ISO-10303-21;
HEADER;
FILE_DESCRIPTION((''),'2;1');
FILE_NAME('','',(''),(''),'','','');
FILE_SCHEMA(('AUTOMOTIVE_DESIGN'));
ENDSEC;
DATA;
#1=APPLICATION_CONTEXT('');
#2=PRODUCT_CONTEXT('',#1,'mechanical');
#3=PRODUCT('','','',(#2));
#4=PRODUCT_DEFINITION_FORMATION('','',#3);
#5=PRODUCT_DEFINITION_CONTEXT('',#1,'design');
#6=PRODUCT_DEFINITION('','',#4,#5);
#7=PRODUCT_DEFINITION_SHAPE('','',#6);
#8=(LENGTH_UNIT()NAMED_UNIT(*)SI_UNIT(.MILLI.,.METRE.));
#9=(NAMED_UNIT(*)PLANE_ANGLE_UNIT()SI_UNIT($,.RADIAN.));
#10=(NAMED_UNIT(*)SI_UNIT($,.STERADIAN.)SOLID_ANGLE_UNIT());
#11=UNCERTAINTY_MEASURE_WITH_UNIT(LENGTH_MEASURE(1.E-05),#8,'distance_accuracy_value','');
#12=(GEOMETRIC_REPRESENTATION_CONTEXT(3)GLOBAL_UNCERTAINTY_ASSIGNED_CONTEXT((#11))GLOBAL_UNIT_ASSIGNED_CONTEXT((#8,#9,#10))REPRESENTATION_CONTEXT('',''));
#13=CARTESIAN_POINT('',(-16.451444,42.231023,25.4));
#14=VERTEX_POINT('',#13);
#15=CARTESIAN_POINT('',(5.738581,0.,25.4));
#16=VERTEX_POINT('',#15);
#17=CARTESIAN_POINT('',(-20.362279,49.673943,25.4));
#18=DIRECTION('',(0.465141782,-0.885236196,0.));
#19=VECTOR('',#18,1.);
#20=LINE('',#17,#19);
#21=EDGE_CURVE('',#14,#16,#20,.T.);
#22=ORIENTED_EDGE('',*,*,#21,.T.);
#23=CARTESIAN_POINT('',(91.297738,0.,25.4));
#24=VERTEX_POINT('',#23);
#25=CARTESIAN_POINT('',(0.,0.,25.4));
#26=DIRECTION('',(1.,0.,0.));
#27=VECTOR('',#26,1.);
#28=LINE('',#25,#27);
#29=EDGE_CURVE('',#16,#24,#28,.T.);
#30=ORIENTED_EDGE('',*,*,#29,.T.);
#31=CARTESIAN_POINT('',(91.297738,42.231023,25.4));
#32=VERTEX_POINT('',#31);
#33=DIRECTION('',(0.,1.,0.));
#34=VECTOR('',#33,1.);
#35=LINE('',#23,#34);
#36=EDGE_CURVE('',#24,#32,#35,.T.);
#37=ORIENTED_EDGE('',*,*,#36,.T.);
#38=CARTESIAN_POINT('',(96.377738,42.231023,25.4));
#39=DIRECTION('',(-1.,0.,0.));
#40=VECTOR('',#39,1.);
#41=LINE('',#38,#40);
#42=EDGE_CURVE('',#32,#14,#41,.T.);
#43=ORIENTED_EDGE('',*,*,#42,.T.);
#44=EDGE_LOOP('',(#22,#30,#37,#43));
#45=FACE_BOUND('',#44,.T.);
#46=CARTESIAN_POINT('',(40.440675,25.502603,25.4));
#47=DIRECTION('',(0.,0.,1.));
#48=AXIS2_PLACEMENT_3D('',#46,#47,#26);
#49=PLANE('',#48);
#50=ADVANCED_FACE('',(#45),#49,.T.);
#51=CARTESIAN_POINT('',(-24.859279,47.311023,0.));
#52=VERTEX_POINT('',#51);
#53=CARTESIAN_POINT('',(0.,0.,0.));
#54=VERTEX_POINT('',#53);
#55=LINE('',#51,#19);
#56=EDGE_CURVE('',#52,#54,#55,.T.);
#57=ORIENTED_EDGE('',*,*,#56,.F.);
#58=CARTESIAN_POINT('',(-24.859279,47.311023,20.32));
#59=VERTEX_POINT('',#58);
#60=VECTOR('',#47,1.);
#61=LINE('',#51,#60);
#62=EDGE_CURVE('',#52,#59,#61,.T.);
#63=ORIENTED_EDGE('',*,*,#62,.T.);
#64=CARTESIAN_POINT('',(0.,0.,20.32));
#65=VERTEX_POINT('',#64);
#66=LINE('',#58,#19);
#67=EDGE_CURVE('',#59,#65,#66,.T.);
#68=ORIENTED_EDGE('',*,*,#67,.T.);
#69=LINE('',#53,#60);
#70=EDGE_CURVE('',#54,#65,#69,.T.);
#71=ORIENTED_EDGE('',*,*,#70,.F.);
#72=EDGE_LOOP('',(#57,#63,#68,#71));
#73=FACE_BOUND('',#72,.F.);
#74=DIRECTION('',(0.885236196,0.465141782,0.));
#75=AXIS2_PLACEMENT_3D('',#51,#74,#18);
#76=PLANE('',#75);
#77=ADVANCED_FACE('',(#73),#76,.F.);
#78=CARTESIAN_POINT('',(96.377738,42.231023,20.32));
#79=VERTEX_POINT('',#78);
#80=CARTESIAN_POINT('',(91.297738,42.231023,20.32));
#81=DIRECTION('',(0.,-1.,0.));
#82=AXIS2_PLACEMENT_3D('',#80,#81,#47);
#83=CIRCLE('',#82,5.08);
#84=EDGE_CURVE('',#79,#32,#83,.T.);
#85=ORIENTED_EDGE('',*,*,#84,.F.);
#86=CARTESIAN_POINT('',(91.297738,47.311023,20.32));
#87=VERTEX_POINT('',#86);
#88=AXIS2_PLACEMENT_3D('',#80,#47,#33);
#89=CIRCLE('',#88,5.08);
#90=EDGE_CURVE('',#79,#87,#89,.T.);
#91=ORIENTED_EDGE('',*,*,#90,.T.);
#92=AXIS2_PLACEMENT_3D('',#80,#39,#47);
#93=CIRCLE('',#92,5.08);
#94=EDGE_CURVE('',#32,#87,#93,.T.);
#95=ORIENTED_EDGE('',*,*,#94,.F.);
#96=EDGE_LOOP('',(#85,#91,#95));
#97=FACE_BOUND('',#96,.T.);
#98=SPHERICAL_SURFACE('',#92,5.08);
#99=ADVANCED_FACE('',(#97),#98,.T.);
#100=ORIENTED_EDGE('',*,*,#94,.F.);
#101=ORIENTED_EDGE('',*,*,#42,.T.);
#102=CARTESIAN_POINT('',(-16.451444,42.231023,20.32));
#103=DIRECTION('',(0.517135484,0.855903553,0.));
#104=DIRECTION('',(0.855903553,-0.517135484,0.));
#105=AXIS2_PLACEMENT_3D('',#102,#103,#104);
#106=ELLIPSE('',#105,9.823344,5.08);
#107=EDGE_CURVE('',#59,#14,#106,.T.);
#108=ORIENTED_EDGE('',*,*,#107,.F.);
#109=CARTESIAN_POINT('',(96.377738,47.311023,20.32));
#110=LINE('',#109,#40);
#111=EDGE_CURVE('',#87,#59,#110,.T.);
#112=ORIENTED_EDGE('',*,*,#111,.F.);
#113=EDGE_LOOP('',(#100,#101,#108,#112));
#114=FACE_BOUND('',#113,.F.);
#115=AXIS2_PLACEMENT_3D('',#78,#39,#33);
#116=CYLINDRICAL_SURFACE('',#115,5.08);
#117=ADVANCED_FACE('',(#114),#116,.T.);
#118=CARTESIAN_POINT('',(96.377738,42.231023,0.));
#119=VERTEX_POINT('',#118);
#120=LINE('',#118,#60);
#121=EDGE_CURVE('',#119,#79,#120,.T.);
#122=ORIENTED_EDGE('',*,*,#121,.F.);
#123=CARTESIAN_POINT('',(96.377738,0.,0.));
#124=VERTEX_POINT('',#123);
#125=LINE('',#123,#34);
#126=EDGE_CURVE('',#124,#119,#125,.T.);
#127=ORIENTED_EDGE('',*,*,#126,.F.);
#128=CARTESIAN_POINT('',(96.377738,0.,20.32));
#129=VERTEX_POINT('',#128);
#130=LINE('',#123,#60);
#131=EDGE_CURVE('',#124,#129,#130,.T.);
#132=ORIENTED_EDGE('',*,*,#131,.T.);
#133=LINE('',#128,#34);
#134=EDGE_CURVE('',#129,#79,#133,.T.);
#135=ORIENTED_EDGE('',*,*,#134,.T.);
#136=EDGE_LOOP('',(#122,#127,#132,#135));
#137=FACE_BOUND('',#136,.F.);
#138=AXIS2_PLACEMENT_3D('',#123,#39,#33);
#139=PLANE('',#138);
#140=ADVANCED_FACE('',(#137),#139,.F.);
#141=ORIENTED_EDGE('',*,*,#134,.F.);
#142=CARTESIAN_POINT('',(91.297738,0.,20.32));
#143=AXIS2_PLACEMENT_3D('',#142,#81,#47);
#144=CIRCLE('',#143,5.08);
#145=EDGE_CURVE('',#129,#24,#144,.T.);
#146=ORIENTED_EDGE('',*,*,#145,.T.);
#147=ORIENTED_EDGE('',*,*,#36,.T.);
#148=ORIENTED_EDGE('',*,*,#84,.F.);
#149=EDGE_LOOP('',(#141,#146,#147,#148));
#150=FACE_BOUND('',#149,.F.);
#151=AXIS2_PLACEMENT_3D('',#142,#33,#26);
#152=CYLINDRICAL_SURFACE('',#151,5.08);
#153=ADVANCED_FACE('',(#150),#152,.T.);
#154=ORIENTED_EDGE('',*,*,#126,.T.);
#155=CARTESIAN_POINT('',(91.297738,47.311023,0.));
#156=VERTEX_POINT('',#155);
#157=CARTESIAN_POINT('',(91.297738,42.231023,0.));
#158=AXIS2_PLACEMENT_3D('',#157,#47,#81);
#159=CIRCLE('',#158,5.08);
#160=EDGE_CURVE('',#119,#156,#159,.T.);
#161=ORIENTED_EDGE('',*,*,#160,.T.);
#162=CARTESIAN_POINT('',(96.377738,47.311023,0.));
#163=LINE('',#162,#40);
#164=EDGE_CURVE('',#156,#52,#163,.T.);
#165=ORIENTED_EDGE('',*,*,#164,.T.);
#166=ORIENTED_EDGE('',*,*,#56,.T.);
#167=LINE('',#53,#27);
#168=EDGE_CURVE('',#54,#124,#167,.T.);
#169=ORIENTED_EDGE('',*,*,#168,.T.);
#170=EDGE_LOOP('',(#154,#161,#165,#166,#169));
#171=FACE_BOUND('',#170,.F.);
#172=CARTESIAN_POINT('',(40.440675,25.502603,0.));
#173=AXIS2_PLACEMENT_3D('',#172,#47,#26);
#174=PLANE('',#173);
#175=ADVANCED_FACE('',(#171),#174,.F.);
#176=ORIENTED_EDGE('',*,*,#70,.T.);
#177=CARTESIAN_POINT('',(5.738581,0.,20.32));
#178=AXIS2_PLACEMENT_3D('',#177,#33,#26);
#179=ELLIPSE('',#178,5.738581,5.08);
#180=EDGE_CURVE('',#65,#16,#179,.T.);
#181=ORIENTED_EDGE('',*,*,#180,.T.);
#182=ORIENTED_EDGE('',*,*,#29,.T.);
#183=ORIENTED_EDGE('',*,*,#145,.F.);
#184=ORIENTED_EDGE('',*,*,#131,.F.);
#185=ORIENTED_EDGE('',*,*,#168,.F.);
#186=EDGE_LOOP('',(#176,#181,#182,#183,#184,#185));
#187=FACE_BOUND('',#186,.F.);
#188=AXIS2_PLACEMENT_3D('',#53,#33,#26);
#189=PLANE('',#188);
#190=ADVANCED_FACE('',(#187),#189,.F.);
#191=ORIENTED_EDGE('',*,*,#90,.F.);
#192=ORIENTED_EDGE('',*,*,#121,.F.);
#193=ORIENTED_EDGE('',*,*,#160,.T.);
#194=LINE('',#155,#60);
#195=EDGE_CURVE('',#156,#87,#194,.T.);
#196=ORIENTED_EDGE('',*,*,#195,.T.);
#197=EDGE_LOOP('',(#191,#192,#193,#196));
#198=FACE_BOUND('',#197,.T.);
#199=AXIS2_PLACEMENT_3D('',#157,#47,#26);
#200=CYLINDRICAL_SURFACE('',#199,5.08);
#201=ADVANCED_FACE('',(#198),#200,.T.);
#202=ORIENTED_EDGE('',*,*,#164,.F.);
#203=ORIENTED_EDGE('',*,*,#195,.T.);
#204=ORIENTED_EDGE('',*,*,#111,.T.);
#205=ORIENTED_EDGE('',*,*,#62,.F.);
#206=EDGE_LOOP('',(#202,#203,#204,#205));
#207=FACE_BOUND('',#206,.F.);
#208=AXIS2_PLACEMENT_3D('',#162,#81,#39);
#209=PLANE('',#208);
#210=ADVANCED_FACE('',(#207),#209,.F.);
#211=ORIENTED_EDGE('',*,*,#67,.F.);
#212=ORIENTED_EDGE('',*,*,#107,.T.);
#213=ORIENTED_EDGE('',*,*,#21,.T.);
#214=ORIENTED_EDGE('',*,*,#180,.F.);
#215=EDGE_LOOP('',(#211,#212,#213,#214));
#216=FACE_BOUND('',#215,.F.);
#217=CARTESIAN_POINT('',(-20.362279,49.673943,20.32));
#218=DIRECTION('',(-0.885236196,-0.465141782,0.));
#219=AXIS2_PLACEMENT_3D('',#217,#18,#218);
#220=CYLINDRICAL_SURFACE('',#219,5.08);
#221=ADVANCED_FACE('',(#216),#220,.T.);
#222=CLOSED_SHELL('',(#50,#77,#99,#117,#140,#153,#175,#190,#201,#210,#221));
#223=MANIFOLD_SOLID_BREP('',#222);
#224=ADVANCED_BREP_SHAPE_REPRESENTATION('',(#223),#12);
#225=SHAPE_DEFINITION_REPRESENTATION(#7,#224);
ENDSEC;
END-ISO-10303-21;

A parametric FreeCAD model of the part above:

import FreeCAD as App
import Part
import Sketcher
Q = App.Units.Quantity


def edges_at(feature, points):
    """Names of the edges that pass closest to the given points."""
    edges = feature.Shape.Edges
    near = lambda p: min(range(len(edges)), key=lambda i: edges[i].distToShape(Part.Vertex(*p))[0])
    return sorted({f"Edge{near(p) + 1}" for p in points})

doc = App.newDocument("Part")
body = doc.addObject("PartDesign::Body", "Body")

sketch1 = body.newObject("Sketcher::SketchObject", "Sketch")
sketch1.AttachmentSupport = (doc.getObject("XY_Plane"), [""])
sketch1.MapMode = "FlatFace"
sketch1.addGeometry([
    Part.LineSegment(App.Vector(-24.859279, 47.311023, 0), App.Vector(0, 0, 0)),
    Part.LineSegment(App.Vector(0, 0, 0), App.Vector(96.377738, 0, 0)),
    Part.LineSegment(App.Vector(96.377738, 0, 0), App.Vector(96.377738, 47.311023, 0)),
    Part.LineSegment(App.Vector(96.377738, 47.311023, 0), App.Vector(-24.859279, 47.311023, 0)),
], False)
sketch1.addConstraint([
    Sketcher.Constraint("Coincident", 0, 2, 1, 1),
    Sketcher.Constraint("Coincident", 1, 2, 2, 1),
    Sketcher.Constraint("Coincident", 2, 2, 3, 1),
    Sketcher.Constraint("Coincident", 3, 2, 0, 1),
    Sketcher.Constraint("Horizontal", 1),
    Sketcher.Constraint("Vertical", 2),
    Sketcher.Constraint("Horizontal", 3),
    Sketcher.Constraint("Coincident", 0, 2, -1, 1),
    Sketcher.Constraint("Distance", 0, Q("53.444519 mm")),
    Sketcher.Constraint("DistanceX", 1, 1, 1, 2, Q("96.377738 mm")),
    Sketcher.Constraint("DistanceX", 3, 2, 3, 1, Q("121.237017 mm")),
])
pad1 = body.newObject("PartDesign::Pad", "Pad")
pad1.Profile = sketch1
pad1.Length = Q("1 in")
doc.recompute()

fillet = body.newObject("PartDesign::Fillet", "Fillet")
fillet.Base = (pad1, edges_at(pad1, [
    (-12.43, 23.656, 25.4),
    (35.759, 47.311, 25.4),
    (96.378, 23.656, 25.4),
    (96.378, 47.311, 12.7),
]))
fillet.Radius = Q("0.2 in")

doc.recompute()
